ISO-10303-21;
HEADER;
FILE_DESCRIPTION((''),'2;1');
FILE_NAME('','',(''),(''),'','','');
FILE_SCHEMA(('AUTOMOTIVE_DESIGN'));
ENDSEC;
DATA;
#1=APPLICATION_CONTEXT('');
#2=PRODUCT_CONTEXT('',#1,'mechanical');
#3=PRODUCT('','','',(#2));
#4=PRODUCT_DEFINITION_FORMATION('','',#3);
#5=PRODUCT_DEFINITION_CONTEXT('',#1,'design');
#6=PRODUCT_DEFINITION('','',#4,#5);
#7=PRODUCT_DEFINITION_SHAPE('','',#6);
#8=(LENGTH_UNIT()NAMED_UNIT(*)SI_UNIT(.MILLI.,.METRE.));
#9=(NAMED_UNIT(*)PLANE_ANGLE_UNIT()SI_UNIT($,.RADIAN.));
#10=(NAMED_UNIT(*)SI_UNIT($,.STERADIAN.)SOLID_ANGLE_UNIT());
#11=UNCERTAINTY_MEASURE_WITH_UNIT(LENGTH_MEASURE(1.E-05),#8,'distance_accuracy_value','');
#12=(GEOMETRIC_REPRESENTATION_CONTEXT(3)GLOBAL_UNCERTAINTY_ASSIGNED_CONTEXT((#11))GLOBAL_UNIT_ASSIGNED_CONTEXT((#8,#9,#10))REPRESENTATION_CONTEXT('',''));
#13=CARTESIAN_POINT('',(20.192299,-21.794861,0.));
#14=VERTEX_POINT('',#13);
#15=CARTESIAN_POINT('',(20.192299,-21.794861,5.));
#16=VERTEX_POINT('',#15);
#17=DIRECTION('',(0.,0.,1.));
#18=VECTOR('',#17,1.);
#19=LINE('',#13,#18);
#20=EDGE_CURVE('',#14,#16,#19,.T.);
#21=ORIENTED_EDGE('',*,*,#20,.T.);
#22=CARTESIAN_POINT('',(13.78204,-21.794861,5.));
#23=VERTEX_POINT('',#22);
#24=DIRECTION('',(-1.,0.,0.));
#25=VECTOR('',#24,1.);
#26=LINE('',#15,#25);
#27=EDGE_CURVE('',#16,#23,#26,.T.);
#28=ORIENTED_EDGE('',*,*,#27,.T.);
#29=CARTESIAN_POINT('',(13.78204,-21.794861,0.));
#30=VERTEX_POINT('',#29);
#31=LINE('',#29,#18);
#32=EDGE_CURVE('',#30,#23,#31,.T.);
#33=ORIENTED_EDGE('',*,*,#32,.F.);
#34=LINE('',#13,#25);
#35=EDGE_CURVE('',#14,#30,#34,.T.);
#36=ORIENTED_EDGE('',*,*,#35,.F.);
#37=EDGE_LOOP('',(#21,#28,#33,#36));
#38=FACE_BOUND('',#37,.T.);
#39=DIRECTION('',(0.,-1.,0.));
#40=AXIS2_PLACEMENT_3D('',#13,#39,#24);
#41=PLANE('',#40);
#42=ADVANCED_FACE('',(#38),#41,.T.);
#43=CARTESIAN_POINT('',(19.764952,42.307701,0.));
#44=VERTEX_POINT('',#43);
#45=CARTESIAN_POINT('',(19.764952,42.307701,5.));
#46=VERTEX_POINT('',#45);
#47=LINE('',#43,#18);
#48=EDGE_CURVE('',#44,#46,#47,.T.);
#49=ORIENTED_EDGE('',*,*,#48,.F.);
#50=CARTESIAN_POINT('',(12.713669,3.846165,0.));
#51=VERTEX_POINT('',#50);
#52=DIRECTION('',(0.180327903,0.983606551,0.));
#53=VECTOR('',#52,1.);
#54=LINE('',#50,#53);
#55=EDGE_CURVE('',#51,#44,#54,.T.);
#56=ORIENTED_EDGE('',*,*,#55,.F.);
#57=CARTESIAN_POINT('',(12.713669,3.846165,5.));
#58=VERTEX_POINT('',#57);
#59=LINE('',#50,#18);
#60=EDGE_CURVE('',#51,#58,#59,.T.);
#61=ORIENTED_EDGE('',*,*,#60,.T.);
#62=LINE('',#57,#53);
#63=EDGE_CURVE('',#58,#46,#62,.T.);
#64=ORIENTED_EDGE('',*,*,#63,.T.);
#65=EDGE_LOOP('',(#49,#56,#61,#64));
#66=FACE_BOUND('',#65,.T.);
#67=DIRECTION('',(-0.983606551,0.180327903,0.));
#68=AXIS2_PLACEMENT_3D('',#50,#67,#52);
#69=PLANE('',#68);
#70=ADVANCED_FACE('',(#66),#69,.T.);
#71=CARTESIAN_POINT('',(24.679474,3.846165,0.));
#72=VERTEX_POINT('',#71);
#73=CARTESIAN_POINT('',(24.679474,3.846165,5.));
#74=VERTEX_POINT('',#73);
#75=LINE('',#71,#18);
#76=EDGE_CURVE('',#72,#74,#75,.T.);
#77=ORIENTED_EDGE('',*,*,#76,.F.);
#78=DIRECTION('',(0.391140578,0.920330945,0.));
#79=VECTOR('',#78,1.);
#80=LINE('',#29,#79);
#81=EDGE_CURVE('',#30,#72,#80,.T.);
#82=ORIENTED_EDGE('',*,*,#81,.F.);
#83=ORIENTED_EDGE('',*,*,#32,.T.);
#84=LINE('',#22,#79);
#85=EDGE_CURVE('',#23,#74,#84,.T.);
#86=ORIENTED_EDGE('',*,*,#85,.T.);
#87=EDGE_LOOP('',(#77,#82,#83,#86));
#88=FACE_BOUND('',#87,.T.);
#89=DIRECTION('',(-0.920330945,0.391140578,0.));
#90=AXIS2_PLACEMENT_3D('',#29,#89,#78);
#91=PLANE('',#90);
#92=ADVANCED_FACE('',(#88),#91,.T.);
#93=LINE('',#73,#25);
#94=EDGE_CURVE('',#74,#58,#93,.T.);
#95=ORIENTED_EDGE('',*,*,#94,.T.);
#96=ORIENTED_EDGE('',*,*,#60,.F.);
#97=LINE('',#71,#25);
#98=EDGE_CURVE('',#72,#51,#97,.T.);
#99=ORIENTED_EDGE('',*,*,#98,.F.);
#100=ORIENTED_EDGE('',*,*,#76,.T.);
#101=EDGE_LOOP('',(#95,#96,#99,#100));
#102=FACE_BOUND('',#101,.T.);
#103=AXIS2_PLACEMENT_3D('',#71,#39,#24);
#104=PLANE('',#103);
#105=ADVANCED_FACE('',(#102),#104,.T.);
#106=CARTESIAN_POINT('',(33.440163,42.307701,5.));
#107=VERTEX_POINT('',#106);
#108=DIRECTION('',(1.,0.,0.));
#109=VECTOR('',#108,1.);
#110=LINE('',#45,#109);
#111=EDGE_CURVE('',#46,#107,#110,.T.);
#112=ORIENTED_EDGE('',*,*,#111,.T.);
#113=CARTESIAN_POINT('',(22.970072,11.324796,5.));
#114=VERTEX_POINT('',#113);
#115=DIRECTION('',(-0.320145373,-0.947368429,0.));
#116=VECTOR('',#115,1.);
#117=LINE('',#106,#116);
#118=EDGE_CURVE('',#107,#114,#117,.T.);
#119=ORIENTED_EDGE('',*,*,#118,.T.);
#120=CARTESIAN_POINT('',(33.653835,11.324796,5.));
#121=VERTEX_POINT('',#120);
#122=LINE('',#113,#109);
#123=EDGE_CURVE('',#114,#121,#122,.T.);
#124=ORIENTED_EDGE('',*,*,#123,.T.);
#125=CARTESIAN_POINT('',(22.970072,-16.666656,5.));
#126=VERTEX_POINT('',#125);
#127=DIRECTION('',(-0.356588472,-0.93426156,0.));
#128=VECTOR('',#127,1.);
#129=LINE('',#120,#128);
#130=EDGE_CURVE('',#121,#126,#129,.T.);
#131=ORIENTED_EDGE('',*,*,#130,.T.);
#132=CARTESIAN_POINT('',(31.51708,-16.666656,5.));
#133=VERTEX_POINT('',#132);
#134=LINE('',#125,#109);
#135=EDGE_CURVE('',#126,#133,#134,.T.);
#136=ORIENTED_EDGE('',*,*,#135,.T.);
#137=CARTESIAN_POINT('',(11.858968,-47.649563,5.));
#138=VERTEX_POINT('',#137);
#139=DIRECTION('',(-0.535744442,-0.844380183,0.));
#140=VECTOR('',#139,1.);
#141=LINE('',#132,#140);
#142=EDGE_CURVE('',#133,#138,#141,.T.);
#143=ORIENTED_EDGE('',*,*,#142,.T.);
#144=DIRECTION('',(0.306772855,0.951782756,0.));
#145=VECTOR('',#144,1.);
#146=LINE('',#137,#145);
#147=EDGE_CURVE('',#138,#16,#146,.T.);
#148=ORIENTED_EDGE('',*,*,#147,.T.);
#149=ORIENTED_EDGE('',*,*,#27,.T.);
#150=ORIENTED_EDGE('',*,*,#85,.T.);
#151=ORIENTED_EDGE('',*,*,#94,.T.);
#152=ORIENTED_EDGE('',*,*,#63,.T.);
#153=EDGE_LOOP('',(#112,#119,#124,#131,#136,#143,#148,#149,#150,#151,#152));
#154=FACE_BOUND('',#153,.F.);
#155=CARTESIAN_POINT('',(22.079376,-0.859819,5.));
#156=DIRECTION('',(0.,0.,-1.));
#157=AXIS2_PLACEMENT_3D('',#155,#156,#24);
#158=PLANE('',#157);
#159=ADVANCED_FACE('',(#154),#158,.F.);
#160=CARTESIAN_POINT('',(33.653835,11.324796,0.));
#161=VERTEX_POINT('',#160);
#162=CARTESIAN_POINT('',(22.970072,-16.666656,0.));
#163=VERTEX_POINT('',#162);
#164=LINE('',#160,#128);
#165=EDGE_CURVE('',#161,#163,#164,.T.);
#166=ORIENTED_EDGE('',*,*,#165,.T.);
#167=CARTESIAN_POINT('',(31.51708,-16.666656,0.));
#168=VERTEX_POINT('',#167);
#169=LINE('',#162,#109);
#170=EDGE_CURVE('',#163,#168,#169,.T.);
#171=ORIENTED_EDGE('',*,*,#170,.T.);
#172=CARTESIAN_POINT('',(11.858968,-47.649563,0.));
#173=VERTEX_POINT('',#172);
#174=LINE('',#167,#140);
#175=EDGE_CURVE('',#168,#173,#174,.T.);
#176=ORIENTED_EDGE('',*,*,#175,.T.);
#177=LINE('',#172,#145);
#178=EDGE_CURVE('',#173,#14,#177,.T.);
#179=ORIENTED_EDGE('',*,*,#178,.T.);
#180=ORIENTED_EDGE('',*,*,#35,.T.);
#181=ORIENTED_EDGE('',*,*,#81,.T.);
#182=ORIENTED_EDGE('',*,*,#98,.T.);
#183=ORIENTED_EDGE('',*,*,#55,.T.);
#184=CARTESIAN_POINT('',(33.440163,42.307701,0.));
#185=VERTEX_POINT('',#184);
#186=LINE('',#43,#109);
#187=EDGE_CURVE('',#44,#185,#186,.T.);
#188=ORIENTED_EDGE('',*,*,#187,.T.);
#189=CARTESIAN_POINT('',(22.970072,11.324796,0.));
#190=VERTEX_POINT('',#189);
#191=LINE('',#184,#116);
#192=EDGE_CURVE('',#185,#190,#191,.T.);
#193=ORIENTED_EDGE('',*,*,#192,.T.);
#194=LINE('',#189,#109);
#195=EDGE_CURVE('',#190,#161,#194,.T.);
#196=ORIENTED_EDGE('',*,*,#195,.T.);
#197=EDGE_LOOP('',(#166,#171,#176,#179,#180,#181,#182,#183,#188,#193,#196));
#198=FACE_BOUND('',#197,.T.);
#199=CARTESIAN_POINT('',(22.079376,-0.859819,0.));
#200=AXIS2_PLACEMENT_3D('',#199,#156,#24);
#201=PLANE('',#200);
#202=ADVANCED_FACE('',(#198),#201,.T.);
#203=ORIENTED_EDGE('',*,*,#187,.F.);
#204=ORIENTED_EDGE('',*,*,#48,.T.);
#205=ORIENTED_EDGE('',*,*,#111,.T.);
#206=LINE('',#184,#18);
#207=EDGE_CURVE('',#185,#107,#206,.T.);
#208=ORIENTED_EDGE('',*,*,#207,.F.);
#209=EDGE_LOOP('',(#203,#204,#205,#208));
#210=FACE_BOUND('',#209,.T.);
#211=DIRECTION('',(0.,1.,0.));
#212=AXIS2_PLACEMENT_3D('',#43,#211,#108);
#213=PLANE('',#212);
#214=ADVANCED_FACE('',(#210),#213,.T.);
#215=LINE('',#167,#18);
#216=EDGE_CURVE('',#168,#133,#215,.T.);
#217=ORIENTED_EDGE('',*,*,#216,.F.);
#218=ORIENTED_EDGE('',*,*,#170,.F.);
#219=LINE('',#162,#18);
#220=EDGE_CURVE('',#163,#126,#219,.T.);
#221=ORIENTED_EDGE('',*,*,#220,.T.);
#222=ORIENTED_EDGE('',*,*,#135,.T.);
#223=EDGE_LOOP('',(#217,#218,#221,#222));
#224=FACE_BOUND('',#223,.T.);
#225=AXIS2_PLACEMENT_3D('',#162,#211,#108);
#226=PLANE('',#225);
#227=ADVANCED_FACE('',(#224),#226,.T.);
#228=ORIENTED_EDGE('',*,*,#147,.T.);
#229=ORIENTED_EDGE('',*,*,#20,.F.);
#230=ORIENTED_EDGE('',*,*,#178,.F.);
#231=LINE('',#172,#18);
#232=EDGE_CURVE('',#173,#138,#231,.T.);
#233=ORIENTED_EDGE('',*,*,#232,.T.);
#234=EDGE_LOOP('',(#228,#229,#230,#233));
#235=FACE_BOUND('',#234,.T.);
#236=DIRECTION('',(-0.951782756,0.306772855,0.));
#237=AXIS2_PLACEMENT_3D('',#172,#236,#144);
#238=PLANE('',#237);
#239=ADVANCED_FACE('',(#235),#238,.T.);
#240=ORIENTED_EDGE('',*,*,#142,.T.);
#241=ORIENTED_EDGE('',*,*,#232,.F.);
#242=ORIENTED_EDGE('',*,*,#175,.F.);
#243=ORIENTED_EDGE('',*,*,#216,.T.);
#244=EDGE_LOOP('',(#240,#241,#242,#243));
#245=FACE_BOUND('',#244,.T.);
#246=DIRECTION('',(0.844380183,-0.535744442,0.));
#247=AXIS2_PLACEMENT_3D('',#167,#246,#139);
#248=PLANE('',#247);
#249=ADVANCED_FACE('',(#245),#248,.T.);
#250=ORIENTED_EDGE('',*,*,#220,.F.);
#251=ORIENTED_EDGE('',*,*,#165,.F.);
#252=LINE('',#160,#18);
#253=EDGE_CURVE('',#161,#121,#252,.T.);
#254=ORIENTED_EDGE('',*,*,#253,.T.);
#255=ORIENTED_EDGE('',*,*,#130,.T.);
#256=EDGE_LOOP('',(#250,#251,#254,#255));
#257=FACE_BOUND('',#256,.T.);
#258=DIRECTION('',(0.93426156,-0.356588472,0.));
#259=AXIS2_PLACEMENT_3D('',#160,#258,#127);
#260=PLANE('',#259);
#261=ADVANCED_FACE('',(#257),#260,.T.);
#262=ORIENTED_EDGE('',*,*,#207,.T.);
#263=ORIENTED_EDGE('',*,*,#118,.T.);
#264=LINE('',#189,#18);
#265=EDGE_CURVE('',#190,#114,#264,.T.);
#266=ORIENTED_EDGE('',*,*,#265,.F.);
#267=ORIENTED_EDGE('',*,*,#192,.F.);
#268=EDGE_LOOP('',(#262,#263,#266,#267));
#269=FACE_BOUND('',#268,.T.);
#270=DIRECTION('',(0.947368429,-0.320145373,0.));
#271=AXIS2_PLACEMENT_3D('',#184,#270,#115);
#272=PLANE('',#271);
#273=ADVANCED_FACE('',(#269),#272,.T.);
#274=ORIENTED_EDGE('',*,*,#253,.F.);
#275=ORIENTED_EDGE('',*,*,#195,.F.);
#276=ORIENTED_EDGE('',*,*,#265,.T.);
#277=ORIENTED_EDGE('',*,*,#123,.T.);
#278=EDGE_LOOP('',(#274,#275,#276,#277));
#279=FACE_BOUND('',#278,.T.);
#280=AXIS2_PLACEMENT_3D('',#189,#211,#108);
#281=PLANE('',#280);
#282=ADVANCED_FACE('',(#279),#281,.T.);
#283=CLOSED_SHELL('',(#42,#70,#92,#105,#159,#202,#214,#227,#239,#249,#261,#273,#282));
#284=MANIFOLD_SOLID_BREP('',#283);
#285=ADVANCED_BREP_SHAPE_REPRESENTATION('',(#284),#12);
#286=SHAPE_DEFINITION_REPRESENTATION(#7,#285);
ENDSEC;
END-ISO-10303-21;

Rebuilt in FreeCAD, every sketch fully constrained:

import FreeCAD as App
import Part
import Sketcher

V = App.Vector

doc = App.newDocument("Part")
body = doc.addObject("PartDesign::Body", "Body")

# Sketch on XY plane
sketch1 = doc.addObject("Sketcher::SketchObject", "Sketch")
body.addObject(sketch1)
sketch1.AttachmentSupport = (doc.XY_Plane, [""])
sketch1.MapMode = "FlatFace"
sketch1.addGeometry(Part.LineSegment(V(33.440163, 42.307701, 0), V(19.764952, 42.307701, 0)), False)
sketch1.addGeometry(Part.LineSegment(V(19.764952, 42.307701, 0), V(12.713669, 3.846165, 0)), False)
sketch1.addGeometry(Part.LineSegment(V(12.713669, 3.846165, 0), V(24.679474, 3.846165, 0)), False)
sketch1.addGeometry(Part.LineSegment(V(24.679474, 3.846165, 0), V(13.78204, -21.794861, 0)), False)
sketch1.addGeometry(Part.LineSegment(V(13.78204, -21.794861, 0), V(20.192299, -21.794861, 0)), False)
sketch1.addGeometry(Part.LineSegment(V(20.192299, -21.794861, 0), V(11.858968, -47.649563, 0)), False)
sketch1.addGeometry(Part.LineSegment(V(11.858968, -47.649563, 0), V(31.51708, -16.666656, 0)), False)
sketch1.addGeometry(Part.LineSegment(V(31.51708, -16.666656, 0), V(22.970072, -16.666656, 0)), False)
sketch1.addGeometry(Part.LineSegment(V(22.970072, -16.666656, 0), V(33.653835, 11.324796, 0)), False)
sketch1.addGeometry(Part.LineSegment(V(33.653835, 11.324796, 0), V(22.970072, 11.324796, 0)), False)
sketch1.addGeometry(Part.LineSegment(V(22.970072, 11.324796, 0), V(33.440163, 42.307701, 0)), False)
sketch1.addConstraint(Sketcher.Constraint("Coincident", 0, 2, 1, 1))
sketch1.addConstraint(Sketcher.Constraint("Coincident", 1, 2, 2, 1))
sketch1.addConstraint(Sketcher.Constraint("Coincident", 2, 2, 3, 1))
sketch1.addConstraint(Sketcher.Constraint("Coincident", 3, 2, 4, 1))
sketch1.addConstraint(Sketcher.Constraint("Coincident", 4, 2, 5, 1))
sketch1.addConstraint(Sketcher.Constraint("Coincident", 5, 2, 6, 1))
sketch1.addConstraint(Sketcher.Constraint("Coincident", 6, 2, 7, 1))
sketch1.addConstraint(Sketcher.Constraint("Coincident", 7, 2, 8, 1))
sketch1.addConstraint(Sketcher.Constraint("Coincident", 8, 2, 9, 1))
sketch1.addConstraint(Sketcher.Constraint("Coincident", 9, 2, 10, 1))
sketch1.addConstraint(Sketcher.Constraint("Coincident", 10, 2, 0, 1))
sketch1.addConstraint(Sketcher.Constraint("Horizontal", 0))
sketch1.addConstraint(Sketcher.Constraint("Horizontal", 2))
sketch1.addConstraint(Sketcher.Constraint("Horizontal", 4))
sketch1.addConstraint(Sketcher.Constraint("Horizontal", 7))
sketch1.addConstraint(Sketcher.Constraint("Horizontal", 9))
sketch1.addConstraint(Sketcher.Constraint("Vertical", 7, 2, 9, 2))
sketch1.addConstraint(Sketcher.Constraint("Distance", 5, 27.164499))
sketch1.addConstraint(Sketcher.Constraint("DistanceX", 0, 2, 0, 1, 13.675211))
sketch1.addConstraint(Sketcher.Constraint("DistanceX", 4, 1, 4, 2, 6.410259))
sketch1.addConstraint(Sketcher.Constraint("DistanceX", 7, 2, 7, 1, 8.547008))
sketch1.addConstraint(Sketcher.Constraint("DistanceY", -1, 1, 0, 2, 42.307701))
sketch1.addConstraint(Sketcher.Constraint("DistanceX", -1, 1, 4, 2, 20.192299))
sketch1.addConstraint(Sketcher.Constraint("DistanceY", 5, 2, 3, 2, 25.854702))
sketch1.addConstraint(Sketcher.Constraint("DistanceX", 5, 2, 1, 2, 0.854701))
sketch1.addConstraint(Sketcher.Constraint("Distance", 1, 39.102562))
sketch1.addConstraint(Sketcher.Constraint("Distance", 3, 27.860658))
sketch1.addConstraint(Sketcher.Constraint("DistanceX", 2, 1, 2, 2, 11.965805))
sketch1.addConstraint(Sketcher.Constraint("DistanceX", 9, 2, 9, 1, 10.683763))
sketch1.addConstraint(Sketcher.Constraint("DistanceY", 3, 2, -1, 1, 21.794861))
sketch1.addConstraint(Sketcher.Constraint("DistanceX", -1, 1, 6, 2, 31.51708))
sketch1.addConstraint(Sketcher.Constraint("DistanceY", 6, 2, 2, 2, 20.512821))
sketch1.addConstraint(Sketcher.Constraint("DistanceY", 2, 2, 8, 2, 7.478631))
pad1 = doc.addObject("PartDesign::Pad", "Pad")
body.addObject(pad1)
pad1.Profile = sketch1
pad1.Length = 5

doc.recompute()
